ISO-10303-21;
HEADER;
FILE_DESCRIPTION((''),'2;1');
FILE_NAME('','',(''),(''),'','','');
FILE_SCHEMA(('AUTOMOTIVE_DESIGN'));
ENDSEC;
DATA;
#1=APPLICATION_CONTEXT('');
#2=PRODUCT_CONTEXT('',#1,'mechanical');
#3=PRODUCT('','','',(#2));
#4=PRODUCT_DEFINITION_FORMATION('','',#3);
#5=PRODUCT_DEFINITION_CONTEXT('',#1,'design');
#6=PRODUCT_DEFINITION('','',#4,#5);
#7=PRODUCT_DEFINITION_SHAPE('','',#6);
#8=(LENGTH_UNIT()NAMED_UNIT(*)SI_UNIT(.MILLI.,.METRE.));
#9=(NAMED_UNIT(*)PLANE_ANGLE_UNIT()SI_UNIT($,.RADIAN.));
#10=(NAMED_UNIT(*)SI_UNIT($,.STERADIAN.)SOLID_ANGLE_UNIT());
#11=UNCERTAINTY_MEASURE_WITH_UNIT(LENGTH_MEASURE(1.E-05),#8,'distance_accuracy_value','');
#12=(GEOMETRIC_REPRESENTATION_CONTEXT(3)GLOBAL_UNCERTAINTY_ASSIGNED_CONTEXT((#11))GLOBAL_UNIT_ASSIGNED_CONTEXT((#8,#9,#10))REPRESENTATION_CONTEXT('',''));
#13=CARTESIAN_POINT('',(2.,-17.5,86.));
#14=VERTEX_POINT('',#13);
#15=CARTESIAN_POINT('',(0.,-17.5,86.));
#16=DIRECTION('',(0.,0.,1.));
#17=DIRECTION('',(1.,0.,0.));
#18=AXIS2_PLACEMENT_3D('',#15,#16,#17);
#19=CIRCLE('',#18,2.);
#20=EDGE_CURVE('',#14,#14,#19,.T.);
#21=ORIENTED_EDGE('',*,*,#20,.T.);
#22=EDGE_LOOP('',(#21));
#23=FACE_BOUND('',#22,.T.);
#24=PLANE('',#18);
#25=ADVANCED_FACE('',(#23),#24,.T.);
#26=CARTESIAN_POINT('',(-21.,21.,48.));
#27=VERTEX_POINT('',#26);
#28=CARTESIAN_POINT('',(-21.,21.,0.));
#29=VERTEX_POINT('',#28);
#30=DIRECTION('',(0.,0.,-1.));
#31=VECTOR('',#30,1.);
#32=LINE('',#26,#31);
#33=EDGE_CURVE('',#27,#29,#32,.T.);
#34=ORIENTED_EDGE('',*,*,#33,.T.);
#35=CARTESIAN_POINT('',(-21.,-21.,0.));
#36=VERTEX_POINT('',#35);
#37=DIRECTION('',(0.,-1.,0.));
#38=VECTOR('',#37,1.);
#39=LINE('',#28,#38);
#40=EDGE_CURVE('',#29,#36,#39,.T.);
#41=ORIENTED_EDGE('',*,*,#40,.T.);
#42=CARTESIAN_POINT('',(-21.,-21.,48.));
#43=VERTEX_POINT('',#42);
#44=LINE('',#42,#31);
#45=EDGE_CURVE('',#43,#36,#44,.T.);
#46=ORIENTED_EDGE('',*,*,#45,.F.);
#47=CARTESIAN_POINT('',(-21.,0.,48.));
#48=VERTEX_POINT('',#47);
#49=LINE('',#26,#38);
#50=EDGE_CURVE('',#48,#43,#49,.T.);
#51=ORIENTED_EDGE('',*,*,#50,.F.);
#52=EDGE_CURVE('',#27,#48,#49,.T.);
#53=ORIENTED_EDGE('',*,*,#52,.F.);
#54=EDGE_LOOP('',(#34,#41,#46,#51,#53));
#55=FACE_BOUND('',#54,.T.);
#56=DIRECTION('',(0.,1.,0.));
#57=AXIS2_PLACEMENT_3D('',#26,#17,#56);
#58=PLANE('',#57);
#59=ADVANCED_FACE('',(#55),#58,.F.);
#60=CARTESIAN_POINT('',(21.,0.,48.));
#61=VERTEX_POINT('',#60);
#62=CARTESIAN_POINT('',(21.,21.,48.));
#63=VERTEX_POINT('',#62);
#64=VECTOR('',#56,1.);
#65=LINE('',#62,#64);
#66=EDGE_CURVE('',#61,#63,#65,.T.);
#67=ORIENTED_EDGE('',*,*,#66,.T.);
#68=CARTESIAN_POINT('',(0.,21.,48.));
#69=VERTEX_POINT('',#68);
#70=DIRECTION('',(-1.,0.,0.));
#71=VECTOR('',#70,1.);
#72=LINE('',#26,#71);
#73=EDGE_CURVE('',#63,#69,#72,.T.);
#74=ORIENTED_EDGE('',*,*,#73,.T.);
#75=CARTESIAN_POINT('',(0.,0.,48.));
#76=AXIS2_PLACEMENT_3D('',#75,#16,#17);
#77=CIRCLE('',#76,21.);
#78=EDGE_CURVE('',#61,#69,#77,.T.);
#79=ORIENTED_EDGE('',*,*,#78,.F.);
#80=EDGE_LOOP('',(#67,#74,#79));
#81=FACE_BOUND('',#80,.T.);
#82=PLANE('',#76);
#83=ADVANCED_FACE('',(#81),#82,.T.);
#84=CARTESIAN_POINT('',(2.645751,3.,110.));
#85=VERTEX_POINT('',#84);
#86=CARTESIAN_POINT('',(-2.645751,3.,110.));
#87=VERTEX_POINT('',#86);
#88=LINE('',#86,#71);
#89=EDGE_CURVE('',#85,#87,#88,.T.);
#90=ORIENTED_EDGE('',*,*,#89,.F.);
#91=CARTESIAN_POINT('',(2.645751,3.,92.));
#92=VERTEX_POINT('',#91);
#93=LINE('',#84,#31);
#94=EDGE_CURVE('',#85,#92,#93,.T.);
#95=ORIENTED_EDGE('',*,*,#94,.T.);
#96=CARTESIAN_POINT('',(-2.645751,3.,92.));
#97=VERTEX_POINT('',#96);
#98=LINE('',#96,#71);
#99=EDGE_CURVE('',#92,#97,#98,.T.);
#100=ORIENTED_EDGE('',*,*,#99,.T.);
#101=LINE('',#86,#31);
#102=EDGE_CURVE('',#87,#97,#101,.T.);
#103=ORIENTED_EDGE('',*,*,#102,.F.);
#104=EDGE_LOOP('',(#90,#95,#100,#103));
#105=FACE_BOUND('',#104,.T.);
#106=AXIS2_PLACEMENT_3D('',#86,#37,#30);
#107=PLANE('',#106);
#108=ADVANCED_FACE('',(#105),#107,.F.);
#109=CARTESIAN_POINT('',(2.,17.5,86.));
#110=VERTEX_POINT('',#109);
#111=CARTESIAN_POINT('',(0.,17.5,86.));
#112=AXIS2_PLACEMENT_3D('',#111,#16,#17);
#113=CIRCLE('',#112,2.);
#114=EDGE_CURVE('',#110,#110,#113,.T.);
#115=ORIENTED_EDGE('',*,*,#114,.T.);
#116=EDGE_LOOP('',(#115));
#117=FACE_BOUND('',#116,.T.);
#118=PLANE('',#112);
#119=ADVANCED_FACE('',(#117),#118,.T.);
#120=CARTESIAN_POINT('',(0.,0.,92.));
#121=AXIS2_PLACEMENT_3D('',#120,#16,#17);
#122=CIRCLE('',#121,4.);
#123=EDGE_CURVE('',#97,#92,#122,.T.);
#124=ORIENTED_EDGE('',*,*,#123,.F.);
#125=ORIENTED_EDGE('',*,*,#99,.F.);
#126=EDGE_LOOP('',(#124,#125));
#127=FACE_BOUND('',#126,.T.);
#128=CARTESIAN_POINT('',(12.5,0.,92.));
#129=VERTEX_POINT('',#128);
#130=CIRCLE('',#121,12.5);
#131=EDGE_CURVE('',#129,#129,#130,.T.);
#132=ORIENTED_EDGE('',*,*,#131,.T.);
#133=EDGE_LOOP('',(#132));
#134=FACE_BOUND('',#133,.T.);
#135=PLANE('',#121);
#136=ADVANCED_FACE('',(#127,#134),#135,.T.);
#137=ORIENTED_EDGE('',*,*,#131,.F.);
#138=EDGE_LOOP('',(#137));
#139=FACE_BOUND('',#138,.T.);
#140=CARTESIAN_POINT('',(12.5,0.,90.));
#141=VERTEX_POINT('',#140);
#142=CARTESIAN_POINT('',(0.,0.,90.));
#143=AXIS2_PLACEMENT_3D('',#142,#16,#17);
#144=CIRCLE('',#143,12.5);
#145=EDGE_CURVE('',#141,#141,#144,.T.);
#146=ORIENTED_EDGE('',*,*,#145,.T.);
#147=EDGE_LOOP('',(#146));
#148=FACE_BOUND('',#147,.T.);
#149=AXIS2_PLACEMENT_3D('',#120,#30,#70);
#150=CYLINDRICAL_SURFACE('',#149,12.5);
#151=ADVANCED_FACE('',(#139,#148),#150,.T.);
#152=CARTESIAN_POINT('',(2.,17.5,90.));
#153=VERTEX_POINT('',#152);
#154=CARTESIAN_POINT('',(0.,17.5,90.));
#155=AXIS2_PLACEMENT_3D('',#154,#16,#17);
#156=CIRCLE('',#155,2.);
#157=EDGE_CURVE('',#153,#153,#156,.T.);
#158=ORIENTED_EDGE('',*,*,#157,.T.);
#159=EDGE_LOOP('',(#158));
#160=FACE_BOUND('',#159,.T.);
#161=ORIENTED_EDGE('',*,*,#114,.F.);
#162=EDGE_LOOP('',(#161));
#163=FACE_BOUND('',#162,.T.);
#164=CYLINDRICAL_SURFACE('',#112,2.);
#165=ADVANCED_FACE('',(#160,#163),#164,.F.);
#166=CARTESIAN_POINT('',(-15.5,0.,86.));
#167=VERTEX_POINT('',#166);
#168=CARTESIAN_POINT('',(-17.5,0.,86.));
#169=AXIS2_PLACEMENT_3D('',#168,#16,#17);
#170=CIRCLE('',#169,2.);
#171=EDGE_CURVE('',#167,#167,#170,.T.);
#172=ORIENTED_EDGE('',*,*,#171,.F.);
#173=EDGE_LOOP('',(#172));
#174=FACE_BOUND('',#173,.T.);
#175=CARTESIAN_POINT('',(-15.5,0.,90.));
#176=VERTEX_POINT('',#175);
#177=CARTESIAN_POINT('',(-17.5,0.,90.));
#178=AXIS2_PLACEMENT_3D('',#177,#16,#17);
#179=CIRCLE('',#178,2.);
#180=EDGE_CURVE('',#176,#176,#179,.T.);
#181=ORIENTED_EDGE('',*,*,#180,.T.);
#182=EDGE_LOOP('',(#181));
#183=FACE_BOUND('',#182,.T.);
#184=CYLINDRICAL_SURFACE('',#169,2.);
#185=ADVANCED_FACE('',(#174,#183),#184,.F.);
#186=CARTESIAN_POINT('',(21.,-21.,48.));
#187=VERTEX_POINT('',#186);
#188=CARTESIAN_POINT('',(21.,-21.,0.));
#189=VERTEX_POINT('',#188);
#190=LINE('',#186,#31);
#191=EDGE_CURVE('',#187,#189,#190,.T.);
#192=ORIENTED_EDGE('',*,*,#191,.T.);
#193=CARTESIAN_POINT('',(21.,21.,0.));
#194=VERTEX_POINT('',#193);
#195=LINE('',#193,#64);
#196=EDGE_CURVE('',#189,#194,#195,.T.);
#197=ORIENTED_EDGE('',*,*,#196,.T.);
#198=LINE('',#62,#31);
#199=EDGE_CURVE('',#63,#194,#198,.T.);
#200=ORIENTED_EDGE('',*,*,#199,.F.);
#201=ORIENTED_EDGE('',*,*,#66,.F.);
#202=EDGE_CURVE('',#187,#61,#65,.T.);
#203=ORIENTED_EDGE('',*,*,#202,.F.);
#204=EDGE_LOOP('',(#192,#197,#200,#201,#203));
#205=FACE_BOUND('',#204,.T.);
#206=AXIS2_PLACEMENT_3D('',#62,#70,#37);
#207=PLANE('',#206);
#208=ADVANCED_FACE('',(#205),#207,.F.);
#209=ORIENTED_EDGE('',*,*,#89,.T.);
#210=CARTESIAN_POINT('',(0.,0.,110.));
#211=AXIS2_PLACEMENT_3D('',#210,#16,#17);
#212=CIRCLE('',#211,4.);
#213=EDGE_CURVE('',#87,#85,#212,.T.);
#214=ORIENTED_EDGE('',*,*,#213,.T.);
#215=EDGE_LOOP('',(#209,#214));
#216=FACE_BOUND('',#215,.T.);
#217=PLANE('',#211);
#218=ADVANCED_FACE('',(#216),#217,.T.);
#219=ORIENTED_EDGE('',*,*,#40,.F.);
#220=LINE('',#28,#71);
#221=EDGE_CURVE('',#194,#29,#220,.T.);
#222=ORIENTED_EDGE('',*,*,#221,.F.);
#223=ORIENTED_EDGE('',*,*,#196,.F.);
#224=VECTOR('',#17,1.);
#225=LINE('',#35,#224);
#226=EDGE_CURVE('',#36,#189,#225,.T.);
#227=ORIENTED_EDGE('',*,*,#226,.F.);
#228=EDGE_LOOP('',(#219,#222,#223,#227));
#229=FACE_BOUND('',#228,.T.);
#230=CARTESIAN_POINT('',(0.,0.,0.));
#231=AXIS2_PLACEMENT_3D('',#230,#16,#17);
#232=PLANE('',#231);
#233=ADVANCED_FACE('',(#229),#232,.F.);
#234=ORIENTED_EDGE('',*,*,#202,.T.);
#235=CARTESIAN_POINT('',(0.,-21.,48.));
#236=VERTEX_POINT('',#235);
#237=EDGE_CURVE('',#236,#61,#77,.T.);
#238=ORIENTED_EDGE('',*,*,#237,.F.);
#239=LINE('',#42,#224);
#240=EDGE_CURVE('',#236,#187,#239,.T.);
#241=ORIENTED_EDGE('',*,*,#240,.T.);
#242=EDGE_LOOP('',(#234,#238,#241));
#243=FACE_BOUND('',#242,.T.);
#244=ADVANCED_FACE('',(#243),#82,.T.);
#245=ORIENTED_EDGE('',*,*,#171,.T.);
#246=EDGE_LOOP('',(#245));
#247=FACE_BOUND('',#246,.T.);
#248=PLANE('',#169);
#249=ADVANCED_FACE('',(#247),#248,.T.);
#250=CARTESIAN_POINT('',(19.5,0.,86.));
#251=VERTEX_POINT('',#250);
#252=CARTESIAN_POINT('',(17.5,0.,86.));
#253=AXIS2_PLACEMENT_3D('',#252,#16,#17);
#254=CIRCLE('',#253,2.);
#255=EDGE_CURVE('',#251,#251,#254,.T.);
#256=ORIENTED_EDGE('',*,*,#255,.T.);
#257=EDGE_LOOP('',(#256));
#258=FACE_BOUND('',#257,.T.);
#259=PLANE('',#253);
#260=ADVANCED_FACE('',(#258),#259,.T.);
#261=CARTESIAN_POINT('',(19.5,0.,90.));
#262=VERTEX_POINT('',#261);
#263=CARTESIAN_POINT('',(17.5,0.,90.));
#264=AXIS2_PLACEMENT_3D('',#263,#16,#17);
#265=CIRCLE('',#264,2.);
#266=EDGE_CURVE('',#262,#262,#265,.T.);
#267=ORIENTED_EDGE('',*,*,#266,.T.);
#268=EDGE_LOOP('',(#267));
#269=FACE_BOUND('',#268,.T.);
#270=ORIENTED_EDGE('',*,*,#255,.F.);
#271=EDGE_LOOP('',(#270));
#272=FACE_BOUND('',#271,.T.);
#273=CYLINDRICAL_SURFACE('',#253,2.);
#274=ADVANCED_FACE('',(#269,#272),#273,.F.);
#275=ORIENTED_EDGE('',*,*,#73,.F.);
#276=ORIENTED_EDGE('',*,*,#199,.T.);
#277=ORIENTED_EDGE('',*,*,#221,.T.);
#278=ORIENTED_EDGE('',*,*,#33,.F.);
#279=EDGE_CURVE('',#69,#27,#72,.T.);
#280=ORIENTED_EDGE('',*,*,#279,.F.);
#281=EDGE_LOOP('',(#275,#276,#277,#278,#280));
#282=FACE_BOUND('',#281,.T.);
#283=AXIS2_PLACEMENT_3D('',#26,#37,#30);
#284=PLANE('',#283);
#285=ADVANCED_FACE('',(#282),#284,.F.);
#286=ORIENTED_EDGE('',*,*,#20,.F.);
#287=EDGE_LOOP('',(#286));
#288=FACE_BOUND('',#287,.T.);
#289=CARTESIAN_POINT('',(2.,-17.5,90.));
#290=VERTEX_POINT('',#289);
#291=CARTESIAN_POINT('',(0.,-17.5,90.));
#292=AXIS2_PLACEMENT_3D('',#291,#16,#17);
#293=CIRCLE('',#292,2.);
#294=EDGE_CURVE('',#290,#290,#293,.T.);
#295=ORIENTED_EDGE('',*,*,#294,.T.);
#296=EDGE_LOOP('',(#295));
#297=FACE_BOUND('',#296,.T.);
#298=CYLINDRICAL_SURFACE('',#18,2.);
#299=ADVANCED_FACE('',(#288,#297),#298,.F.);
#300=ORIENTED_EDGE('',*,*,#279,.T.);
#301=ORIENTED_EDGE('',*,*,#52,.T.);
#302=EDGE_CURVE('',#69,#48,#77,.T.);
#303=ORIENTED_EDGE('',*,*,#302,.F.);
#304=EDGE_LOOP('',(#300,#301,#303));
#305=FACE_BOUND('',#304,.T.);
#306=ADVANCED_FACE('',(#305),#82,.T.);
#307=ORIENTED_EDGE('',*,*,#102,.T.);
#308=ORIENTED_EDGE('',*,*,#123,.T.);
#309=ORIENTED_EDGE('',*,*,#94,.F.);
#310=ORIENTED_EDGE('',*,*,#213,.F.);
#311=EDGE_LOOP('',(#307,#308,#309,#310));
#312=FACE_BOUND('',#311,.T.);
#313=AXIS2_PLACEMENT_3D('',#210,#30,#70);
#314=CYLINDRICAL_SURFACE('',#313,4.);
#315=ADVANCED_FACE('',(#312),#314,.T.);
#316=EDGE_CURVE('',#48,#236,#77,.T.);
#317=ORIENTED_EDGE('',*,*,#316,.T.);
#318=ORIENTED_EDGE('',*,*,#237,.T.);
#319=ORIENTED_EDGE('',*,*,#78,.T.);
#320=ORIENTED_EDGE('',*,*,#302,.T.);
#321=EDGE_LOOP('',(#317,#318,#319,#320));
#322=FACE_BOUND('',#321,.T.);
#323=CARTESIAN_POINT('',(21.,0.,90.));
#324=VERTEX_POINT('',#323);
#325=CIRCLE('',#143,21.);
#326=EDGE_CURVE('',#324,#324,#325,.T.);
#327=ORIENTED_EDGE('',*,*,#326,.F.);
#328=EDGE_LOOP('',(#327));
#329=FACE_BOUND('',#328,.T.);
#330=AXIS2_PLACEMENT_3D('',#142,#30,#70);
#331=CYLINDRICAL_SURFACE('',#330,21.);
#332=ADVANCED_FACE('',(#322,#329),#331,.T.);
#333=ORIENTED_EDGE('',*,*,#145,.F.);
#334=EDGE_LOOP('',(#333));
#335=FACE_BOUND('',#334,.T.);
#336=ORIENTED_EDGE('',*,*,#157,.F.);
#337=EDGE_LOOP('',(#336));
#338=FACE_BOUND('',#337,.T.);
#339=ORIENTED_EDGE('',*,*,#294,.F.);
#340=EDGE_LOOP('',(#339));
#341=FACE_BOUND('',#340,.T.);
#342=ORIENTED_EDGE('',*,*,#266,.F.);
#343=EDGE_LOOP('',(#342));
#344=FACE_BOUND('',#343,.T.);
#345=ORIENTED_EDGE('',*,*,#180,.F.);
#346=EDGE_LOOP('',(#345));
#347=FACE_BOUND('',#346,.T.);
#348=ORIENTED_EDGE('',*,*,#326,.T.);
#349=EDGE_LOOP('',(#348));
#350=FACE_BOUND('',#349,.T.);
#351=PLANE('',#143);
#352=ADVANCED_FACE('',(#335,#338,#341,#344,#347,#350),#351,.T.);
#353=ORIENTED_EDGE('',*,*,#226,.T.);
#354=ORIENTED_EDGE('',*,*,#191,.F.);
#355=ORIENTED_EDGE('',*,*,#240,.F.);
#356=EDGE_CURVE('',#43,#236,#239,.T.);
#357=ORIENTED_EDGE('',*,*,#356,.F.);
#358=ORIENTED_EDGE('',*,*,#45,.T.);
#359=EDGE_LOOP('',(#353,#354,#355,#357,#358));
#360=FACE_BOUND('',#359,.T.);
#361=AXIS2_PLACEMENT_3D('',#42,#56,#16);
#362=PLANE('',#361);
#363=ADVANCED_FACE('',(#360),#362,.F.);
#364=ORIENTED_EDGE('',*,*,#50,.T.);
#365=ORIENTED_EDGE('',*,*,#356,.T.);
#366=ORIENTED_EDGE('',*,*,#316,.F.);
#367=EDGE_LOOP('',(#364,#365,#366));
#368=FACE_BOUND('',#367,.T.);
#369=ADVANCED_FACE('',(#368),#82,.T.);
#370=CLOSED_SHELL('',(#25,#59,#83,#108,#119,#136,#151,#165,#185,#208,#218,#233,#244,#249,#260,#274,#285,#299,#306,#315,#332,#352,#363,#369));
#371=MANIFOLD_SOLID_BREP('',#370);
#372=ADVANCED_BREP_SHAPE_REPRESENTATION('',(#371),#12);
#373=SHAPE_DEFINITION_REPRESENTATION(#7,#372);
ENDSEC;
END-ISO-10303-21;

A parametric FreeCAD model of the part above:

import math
import FreeCAD as App
import Part
import Sketcher

V = App.Vector
Q = App.Units.Quantity


def add_polygon(sketch, points):
    """Adds a closed chain of lines whose ends are joined by coincident constraints."""
    first, n = sketch.GeometryCount, len(points)
    for a, b in zip(points, points[1:] + points[:1]):
        sketch.addGeometry(Part.LineSegment(App.Vector(*a, 0), App.Vector(*b, 0)), False)
    for i in range(n):
        sketch.addConstraint(Sketcher.Constraint("Coincident", first + i, 2, first + (i + 1) % n, 1))

doc = App.newDocument("Part")
params = doc.addObject("Spreadsheet::Sheet", "Params")
for row, (alias, value) in enumerate([
    ("sketch1_width", "42 mm"),
    ("pad1_length", "48 mm"),
    ("sketch2_diameter", "42 mm"),
    ("pad2_length", "42 mm"),
    ("sketch3_diameter", "25 mm"),
    ("pad3_length", "2 mm"),
    ("sketch4_radius", "4 mm"),
    ("pad4_length", "18 mm"),
    ("sketch5_diameter", "4 mm"),
    ("pocket1_length", "4 mm"),
], start=1):
    params.set(f"A{row}", alias)
    params.set(f"B{row}", "=" + value)
    params.setAlias(f"B{row}", alias)

body = doc.addObject("PartDesign::Body", "Body")

sketch1 = doc.addObject("Sketcher::SketchObject", "Sketch")
body.addObject(sketch1)
sketch1.AttachmentSupport = (doc.XY_Plane, [""])
sketch1.MapMode = "FlatFace"
add_polygon(sketch1, [(-21, 21), (-21, -21), (21, -21), (21, 21)])
sketch1.addConstraint([
    Sketcher.Constraint("Vertical", 0),
    Sketcher.Constraint("Horizontal", 1),
    Sketcher.Constraint("Vertical", 2),
    Sketcher.Constraint("Horizontal", 3),
    Sketcher.Constraint("Symmetric", 0, 2, 2, 2, -1, 1),
    Sketcher.Constraint("Equal", 3, 0),
    Sketcher.Constraint("DistanceX", 1, 1, 1, 2, Q("42 mm")),
])
sketch1.setExpression("Constraints[10]", "Params.sketch1_width")
pad1 = doc.addObject("PartDesign::Pad", "Pad")
body.addObject(pad1)
pad1.Profile = sketch1
pad1.setExpression("Length", "Params.pad1_length")

sketch2 = doc.addObject("Sketcher::SketchObject", "Sketch001")
body.addObject(sketch2)
sketch2.AttachmentSupport = (doc.XY_Plane, [""])
sketch2.MapMode = "FlatFace"
sketch2.AttachmentOffset = App.Placement(V(0, 0, 48), App.Rotation())
sketch2.addGeometry(Part.Circle(V(0, 0, 0), V(0, 0, 1), 21), False)
sketch2.addConstraint([
    Sketcher.Constraint("Coincident", 0, 3, -1, 1),
    Sketcher.Constraint("Diameter", 0, Q("42 mm")),
])
sketch2.setExpression("Constraints[1]", "Params.sketch2_diameter")
pad2 = doc.addObject("PartDesign::Pad", "Pad001")
body.addObject(pad2)
pad2.Profile = sketch2
pad2.setExpression("Length", "Params.pad2_length")

sketch3 = doc.addObject("Sketcher::SketchObject", "Sketch002")
body.addObject(sketch3)
sketch3.AttachmentSupport = (doc.XY_Plane, [""])
sketch3.MapMode = "FlatFace"
sketch3.AttachmentOffset = App.Placement(V(0, 0, 90), App.Rotation())
sketch3.addGeometry(Part.Circle(V(0, 0, 0), V(0, 0, 1), 12), False)
sketch3.addConstraint([
    Sketcher.Constraint("Coincident", 0, 3, -1, 1),
    Sketcher.Constraint("Diameter", 0, Q("25 mm")),
])
sketch3.setExpression("Constraints[1]", "Params.sketch3_diameter")
pad3 = doc.addObject("PartDesign::Pad", "Pad002")
body.addObject(pad3)
pad3.Profile = sketch3
pad3.setExpression("Length", "Params.pad3_length")

sketch4 = doc.addObject("Sketcher::SketchObject", "Sketch003")
body.addObject(sketch4)
sketch4.AttachmentSupport = (doc.XY_Plane, [""])
sketch4.MapMode = "FlatFace"
sketch4.AttachmentOffset = App.Placement(V(0, 0, 92), App.Rotation())
sketch4.addGeometry([
    Part.LineSegment(V(2.6, 3, 0), V(-2.6, 3, 0)),
    Part.ArcOfCircle(Part.Circle(V(0, 0, 0), V(0, 0, 1), 4), math.radians(131), math.radians(409)),
], False)
sketch4.addConstraint([
    Sketcher.Constraint("Coincident", 0, 1, 1, 2),
    Sketcher.Constraint("Coincident", 1, 1, 0, 2),
    Sketcher.Constraint("Horizontal", 0),
    Sketcher.Constraint("Coincident", 1, 3, -1, 1),
    Sketcher.Constraint("Radius", 1, Q("4 mm")),
    Sketcher.Constraint("DistanceY", -1, 1, 0, 1, Q("3 mm")),
])
sketch4.setExpression("Constraints[4]", "Params.sketch4_radius")
pad4 = doc.addObject("PartDesign::Pad", "Pad003")
body.addObject(pad4)
pad4.Profile = sketch4
pad4.setExpression("Length", "Params.pad4_length")

sketch5 = doc.addObject("Sketcher::SketchObject", "Sketch004")
body.addObject(sketch5)
sketch5.AttachmentSupport = (doc.XY_Plane, [""])
sketch5.MapMode = "FlatFace"
sketch5.AttachmentOffset = App.Placement(V(0, 0, 90), App.Rotation())
sketch5.addGeometry([
    Part.Circle(V(0, -17.5, 0), V(0, 0, 1), 2),
    Part.Circle(V(-17.5, 0, 0), V(0, 0, 1), 2),
    Part.Circle(V(0, 17.5, 0), V(0, 0, 1), 2),
    Part.Circle(V(17.5, 0, 0), V(0, 0, 1), 2),
], False)
sketch5.addConstraint([
    Sketcher.Constraint("Equal", 0, 1),
    Sketcher.Constraint("Equal", 1, 2),
    Sketcher.Constraint("Equal", 2, 3),
    Sketcher.Constraint("Symmetric", 0, 3, 2, 3, -1, 1),
    Sketcher.Constraint("Symmetric", 1, 3, 3, 3, -1, 1),
    Sketcher.Constraint("PointOnObject", 0, 3, -2),
    Sketcher.Constraint("PointOnObject", 1, 3, -1),
    Sketcher.Constraint("Diameter", 0, Q("4 mm")),
    Sketcher.Constraint("DistanceY", 0, 3, 2, 3, Q("35 mm")),
    Sketcher.Constraint("DistanceX", 1, 3, 3, 3, Q("35 mm")),
])
sketch5.setExpression("Constraints[7]", "Params.sketch5_diameter")
pocket1 = doc.addObject("PartDesign::Pocket", "Pocket")
body.addObject(pocket1)
pocket1.Profile = sketch5
pocket1.setExpression("Length", "Params.pocket1_length")

doc.recompute()
